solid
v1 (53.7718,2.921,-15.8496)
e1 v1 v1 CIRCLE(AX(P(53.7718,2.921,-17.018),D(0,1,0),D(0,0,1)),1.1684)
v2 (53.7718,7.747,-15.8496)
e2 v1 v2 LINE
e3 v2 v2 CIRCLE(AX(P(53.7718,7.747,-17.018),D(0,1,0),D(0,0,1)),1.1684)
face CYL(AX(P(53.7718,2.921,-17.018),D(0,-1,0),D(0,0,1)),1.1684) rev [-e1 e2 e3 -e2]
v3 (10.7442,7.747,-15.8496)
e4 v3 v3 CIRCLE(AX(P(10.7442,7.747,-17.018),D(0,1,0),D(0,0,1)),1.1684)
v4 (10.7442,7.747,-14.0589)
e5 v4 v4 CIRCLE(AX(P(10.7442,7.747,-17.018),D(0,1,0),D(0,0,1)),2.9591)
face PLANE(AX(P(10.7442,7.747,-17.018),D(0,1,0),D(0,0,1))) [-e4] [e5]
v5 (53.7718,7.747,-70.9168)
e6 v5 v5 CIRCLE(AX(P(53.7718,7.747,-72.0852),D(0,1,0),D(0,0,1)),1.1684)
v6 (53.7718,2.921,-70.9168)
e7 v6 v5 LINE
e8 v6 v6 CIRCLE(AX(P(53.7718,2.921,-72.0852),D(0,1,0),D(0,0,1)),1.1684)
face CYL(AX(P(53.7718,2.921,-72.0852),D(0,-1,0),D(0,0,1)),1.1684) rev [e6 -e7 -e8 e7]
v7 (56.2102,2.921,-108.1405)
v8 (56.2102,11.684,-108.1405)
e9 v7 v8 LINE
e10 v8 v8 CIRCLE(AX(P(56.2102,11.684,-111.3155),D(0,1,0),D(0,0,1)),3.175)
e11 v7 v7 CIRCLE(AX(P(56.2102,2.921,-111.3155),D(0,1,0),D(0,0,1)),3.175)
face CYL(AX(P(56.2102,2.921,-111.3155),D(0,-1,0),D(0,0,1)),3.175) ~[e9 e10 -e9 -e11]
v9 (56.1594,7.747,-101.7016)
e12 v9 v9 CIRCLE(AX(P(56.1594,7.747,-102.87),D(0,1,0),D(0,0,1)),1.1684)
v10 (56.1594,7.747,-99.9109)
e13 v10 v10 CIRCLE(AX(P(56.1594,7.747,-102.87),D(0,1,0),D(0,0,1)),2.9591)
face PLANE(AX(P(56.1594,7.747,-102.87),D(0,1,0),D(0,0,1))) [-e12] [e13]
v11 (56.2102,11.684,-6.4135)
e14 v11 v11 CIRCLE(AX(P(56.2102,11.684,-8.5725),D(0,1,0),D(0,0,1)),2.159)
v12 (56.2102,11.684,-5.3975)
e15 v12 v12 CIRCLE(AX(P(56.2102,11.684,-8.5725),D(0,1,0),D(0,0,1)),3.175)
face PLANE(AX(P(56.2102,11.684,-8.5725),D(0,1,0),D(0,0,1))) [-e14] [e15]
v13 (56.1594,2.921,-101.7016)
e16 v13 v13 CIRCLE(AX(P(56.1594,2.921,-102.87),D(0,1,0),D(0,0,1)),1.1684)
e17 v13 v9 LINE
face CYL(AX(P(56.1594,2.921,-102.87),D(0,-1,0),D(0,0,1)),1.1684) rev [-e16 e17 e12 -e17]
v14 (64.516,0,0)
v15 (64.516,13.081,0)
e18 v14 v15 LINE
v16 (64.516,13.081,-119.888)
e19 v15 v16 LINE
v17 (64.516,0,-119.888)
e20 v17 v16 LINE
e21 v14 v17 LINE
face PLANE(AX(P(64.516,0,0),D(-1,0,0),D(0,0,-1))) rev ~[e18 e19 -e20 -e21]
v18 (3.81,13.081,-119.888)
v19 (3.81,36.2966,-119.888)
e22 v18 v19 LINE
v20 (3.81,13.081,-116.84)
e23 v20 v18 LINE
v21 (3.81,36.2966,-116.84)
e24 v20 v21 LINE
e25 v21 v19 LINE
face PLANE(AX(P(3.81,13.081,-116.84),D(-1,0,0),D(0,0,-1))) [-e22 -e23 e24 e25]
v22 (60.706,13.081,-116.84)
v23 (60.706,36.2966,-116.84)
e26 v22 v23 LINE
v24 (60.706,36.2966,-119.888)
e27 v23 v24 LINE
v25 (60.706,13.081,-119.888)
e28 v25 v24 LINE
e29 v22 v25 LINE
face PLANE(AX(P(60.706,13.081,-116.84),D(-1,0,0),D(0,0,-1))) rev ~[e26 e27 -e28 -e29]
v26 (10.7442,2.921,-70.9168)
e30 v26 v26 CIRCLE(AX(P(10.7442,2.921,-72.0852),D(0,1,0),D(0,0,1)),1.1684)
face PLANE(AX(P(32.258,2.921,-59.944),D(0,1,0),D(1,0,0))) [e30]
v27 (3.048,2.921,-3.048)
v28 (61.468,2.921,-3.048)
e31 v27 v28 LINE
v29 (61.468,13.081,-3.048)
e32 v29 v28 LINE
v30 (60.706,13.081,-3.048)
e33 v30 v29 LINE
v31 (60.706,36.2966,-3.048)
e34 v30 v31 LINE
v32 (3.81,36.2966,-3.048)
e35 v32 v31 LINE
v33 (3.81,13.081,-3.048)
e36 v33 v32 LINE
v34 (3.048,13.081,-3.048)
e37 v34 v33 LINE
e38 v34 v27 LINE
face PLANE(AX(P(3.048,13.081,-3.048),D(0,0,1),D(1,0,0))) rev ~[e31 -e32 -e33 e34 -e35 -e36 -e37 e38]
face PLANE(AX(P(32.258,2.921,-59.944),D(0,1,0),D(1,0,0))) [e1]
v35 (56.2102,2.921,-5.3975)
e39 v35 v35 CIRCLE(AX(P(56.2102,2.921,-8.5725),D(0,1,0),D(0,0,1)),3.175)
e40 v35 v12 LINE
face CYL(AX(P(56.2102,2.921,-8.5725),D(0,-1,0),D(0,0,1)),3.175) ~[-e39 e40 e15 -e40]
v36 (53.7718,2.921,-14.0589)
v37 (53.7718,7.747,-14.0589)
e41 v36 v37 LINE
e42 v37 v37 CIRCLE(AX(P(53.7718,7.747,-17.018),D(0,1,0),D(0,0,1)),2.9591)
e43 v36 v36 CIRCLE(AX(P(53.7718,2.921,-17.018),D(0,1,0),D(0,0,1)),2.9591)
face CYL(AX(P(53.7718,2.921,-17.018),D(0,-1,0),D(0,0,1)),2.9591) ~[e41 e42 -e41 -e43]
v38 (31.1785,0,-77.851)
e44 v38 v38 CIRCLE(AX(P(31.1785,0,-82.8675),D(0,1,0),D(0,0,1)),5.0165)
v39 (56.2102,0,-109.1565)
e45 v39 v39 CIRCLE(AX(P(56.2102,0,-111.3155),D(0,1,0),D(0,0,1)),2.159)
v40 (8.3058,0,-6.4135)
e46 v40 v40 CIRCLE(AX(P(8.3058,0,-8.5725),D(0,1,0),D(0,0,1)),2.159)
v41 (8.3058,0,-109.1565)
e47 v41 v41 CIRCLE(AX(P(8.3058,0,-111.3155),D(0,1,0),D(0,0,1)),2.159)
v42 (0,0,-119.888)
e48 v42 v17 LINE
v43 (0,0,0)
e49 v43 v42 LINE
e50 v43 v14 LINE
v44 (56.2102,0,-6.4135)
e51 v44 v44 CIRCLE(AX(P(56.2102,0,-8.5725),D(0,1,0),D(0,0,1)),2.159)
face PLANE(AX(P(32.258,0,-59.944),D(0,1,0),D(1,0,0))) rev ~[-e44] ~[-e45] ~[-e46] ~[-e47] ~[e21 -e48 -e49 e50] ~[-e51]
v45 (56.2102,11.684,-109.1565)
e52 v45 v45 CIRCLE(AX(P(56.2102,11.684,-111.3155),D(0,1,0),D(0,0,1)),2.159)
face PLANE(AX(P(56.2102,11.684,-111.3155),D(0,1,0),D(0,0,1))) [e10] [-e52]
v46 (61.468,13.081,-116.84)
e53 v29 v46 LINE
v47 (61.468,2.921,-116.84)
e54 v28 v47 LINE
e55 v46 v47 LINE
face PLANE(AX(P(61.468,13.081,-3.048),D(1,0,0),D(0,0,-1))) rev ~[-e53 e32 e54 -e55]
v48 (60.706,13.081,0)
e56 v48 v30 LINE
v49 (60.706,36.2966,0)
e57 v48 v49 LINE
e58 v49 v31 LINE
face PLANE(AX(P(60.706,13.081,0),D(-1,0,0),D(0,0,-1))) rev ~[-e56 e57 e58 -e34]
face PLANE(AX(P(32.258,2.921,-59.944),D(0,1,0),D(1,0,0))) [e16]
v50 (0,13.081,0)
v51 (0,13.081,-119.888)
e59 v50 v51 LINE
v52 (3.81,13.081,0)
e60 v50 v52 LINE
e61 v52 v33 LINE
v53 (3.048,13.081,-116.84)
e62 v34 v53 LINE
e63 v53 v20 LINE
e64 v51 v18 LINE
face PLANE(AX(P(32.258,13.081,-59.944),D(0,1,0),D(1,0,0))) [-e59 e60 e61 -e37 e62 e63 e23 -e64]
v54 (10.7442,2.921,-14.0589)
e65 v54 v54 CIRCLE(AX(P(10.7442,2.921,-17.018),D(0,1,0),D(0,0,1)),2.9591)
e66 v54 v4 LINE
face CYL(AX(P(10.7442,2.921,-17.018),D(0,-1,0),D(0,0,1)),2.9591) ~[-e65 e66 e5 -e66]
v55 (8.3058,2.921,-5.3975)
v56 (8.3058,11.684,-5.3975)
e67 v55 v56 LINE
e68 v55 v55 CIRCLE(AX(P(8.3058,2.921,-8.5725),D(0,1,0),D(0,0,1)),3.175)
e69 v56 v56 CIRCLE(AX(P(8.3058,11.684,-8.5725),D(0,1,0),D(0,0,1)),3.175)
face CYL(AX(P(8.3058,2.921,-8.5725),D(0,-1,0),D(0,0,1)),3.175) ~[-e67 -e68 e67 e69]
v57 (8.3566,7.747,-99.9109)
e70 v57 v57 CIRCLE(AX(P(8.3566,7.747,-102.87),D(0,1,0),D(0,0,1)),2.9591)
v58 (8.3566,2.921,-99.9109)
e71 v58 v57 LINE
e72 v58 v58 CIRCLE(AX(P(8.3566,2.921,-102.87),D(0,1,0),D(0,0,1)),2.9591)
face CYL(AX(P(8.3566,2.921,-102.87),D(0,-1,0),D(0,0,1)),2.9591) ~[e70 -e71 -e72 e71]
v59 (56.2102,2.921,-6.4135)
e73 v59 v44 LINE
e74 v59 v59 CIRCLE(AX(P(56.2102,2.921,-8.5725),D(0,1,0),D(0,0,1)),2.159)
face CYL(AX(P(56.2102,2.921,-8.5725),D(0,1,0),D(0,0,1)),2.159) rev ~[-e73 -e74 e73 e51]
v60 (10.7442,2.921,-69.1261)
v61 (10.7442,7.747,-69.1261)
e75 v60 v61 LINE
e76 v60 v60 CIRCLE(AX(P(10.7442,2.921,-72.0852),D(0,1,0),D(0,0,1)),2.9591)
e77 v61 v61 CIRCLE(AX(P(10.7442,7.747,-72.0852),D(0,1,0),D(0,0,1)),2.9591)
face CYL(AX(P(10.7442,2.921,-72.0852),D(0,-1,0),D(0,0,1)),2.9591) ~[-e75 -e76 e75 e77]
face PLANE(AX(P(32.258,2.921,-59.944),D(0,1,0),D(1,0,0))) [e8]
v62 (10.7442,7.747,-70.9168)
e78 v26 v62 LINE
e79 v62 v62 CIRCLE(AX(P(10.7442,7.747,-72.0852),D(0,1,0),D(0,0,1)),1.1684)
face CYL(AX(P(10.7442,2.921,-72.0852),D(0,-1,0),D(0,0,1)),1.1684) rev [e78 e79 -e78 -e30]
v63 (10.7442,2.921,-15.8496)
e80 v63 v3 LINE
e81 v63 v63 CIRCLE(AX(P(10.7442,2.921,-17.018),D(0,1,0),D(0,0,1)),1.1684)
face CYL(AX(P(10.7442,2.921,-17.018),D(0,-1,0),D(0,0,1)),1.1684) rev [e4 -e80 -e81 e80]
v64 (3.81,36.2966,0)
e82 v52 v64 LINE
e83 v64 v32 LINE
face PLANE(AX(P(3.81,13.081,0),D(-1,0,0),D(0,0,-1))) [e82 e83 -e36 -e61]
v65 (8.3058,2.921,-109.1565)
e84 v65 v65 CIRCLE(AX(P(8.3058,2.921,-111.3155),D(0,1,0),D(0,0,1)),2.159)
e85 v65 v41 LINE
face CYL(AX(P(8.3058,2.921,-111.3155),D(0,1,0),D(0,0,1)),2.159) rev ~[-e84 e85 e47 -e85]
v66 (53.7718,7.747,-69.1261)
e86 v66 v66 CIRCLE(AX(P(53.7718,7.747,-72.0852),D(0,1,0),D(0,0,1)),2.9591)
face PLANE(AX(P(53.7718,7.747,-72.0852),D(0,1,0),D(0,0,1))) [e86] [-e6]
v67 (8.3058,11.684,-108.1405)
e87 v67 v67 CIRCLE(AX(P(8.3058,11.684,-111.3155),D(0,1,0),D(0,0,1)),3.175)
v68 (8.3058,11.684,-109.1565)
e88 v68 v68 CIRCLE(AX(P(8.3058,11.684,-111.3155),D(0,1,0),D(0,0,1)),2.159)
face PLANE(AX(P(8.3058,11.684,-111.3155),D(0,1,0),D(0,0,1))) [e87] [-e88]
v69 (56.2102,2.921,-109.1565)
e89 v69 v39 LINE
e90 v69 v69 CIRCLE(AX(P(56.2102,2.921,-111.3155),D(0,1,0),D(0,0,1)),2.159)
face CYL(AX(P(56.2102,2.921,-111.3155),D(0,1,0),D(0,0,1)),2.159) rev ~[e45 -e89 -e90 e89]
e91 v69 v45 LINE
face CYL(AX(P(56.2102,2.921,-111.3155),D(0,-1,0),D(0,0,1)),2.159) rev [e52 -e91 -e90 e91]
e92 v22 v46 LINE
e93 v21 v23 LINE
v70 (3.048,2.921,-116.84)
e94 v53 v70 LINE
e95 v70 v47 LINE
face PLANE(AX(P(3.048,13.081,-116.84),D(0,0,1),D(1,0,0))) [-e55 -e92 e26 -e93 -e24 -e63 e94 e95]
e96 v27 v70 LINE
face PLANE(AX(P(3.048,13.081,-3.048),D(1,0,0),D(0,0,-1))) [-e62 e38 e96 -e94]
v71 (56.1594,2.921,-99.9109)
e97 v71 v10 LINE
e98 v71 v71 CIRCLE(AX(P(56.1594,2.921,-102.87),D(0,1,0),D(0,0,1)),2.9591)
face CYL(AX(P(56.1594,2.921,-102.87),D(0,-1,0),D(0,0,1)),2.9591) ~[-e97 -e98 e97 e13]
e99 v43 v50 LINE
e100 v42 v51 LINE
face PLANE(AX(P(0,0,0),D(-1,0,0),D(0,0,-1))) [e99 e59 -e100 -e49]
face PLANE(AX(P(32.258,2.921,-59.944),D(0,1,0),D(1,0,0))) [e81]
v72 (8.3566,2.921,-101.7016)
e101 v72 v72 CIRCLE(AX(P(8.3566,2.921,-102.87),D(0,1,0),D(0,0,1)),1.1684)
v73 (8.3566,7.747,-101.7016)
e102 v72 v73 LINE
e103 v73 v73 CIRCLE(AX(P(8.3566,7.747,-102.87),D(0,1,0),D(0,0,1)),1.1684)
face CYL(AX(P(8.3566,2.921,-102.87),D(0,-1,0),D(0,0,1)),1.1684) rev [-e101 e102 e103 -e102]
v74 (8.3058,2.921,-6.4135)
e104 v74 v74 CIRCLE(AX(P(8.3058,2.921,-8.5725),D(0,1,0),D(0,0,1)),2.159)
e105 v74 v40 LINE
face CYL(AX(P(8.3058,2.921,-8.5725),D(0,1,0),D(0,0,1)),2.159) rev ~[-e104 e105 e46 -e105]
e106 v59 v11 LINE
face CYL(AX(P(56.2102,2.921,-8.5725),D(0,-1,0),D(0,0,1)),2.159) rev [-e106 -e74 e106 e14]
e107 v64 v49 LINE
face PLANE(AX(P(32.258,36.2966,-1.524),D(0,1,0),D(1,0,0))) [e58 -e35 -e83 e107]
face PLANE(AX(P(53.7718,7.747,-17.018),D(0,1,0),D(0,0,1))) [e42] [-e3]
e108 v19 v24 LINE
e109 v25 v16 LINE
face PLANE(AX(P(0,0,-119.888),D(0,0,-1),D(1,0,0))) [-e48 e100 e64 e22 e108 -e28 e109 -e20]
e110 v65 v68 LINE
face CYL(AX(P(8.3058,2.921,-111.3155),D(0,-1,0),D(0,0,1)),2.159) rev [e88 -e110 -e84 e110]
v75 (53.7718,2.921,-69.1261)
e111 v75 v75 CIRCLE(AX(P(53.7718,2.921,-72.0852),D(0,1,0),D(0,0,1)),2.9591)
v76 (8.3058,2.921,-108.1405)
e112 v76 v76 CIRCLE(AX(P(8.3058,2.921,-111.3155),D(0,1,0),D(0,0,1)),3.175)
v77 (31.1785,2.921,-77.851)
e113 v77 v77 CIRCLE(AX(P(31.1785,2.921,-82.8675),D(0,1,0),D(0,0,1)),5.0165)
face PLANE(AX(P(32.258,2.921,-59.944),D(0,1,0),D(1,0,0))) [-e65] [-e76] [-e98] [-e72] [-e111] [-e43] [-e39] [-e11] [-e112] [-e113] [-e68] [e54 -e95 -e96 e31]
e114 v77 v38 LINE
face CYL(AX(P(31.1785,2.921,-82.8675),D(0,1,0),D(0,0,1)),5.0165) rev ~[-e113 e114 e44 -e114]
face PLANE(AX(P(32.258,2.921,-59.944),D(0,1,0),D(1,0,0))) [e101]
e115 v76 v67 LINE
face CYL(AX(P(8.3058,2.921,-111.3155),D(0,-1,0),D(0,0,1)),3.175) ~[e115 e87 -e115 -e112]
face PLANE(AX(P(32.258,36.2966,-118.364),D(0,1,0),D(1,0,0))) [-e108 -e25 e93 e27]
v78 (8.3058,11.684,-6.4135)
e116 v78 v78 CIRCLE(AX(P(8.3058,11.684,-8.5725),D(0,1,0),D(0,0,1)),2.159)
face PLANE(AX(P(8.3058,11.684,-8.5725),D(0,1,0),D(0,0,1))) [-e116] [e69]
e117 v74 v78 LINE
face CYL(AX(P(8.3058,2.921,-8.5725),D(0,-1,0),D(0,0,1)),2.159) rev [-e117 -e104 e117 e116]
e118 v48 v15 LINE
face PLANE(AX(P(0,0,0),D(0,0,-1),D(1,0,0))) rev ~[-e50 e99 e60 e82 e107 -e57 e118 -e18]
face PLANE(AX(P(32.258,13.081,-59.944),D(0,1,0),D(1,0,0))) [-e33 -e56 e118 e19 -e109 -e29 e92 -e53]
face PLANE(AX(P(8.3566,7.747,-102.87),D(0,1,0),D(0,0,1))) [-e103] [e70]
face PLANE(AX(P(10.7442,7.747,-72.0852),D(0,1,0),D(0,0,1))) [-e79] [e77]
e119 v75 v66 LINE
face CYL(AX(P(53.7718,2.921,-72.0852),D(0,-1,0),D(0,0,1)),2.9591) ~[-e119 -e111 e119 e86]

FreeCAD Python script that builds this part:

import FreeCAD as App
import Part
import Sketcher
from FreeCAD import Vector
Q = App.Units.Quantity


def add_polygon(sketch, points):
    """Adds a closed chain of lines whose ends are joined by coincident constraints."""
    first, n = sketch.GeometryCount, len(points)
    for a, b in zip(points, points[1:] + points[:1]):
        sketch.addGeometry(Part.LineSegment(App.Vector(*a, 0), App.Vector(*b, 0)), False)
    for i in range(n):
        sketch.addConstraint(Sketcher.Constraint("Coincident", first + i, 2, first + (i + 1) % n, 1))

doc = App.newDocument("Part")
body = doc.addObject("PartDesign::Body", "Body")

# Sketch on XZ plane
sketch1 = body.newObject("Sketcher::SketchObject", "Sketch")
sketch1.AttachmentSupport = (doc.getObject("XZ_Plane"), [""])
sketch1.MapMode = "FlatFace"
add_polygon(sketch1, [(0, -119.888), (0, 0), (64.516, 0), (64.516, -119.888)])  # lines 0-3
sketch1.addConstraint([
    Sketcher.Constraint("Vertical", 0),
    Sketcher.Constraint("Horizontal", 1),
    Sketcher.Constraint("Vertical", 2),
    Sketcher.Constraint("Horizontal", 3),
    Sketcher.Constraint("Coincident", 0, 2, -1, 1),
    Sketcher.Constraint("DistanceX", 1, 1, 1, 2, Q("2.54 in")),
    Sketcher.Constraint("DistanceY", 0, 1, 0, 2, Q("4.72 in")),
])
pad1 = body.newObject("PartDesign::Pad", "Pad")
pad1.Profile = sketch1
pad1.Length = Q("0.515 in")
pad1.Reversed = True

# Sketch on XZ plane
sketch2 = body.newObject("Sketcher::SketchObject", "Sketch001")
sketch2.AttachmentSupport = (doc.getObject("XZ_Plane"), [""])
sketch2.MapMode = "FlatFace"
sketch2.AttachmentOffset = App.Placement(Vector(0, 0, -0.515 * 25.4), App.Rotation())
add_polygon(sketch2, [(3.048, -116.84), (3.048, -3.048), (61.468, -3.048), (61.468, -116.84)])  # lines 0-3
sketch2.addConstraint([
    Sketcher.Constraint("Vertical", 0),
    Sketcher.Constraint("Horizontal", 1),
    Sketcher.Constraint("Vertical", 2),
    Sketcher.Constraint("Horizontal", 3),
    Sketcher.Constraint("DistanceX", 1, 1, 1, 2, Q("2.3 in")),
    Sketcher.Constraint("DistanceY", 0, 1, 0, 2, Q("4.48 in")),
    Sketcher.Constraint("DistanceY", 2, 2, -1, 1, Q("4.6 in")),
    Sketcher.Constraint("DistanceX", -1, 1, 0, 2, Q("0.12 in")),
])
pocket1 = body.newObject("PartDesign::Pocket", "Pocket")
pocket1.Profile = sketch2
pocket1.Length = Q("0.4 in")
pocket1.Reversed = True

# Sketch on XZ plane
sketch3 = body.newObject("Sketcher::SketchObject", "Sketch002")
sketch3.AttachmentSupport = (doc.getObject("XZ_Plane"), [""])
sketch3.MapMode = "FlatFace"
sketch3.AttachmentOffset = App.Placement(Vector(0, 0, -0.515 * 25.4), App.Rotation())
add_polygon(sketch3, [(3.81, -3.048), (3.81, 0), (60.706, 0), (60.706, -3.048)])  # lines 0-3
add_polygon(sketch3, [(3.81, -119.888), (3.81, -116.84), (60.706, -116.84), (60.706, -119.888)])  # lines 4-7
sketch3.addConstraint([
    Sketcher.Constraint("Vertical", 0),
    Sketcher.Constraint("Horizontal", 1),
    Sketcher.Constraint("Vertical", 2),
    Sketcher.Constraint("Horizontal", 3),
    Sketcher.Constraint("Vertical", 4),
    Sketcher.Constraint("Horizontal", 5),
    Sketcher.Constraint("Vertical", 6),
    Sketcher.Constraint("Horizontal", 7),
    Sketcher.Constraint("PointOnObject", 0, 2, -1),
    Sketcher.Constraint("Vertical", 3, 2, 4, 2),
    Sketcher.Constraint("Vertical", 2, 2, 5, 2),
    Sketcher.Constraint("Equal", 2, 4),
    Sketcher.Constraint("DistanceX", 1, 1, 1, 2, Q("2.24 in")),
    Sketcher.Constraint("DistanceY", 0, 1, 0, 2, Q("0.12 in")),
    Sketcher.Constraint("DistanceY", 4, 2, -1, 1, Q("4.6 in")),
    Sketcher.Constraint("DistanceX", -1, 1, 0, 2, Q("0.15 in")),
])
pad2 = body.newObject("PartDesign::Pad", "Pad001")
pad2.Profile = sketch3
pad2.Length = Q("0.914 in")
pad2.Reversed = True

# Sketch on XZ plane
sketch4 = body.newObject("Sketcher::SketchObject", "Sketch003")
sketch4.AttachmentSupport = (doc.getObject("XZ_Plane"), [""])
sketch4.MapMode = "FlatFace"
sketch4.AttachmentOffset = App.Placement(Vector(0, 0, -0.115 * 25.4), App.Rotation())
sketch4.addGeometry([
    Part.Circle(Vector(8.3566, -102.87, 0), Vector(0, 0, 1), 2.9591),  # 0
    Part.Circle(Vector(8.3566, -102.87, 0), Vector(0, 0, 1), 1.1684),  # 1
    Part.Circle(Vector(56.1594, -102.87, 0), Vector(0, 0, 1), 2.9591),  # 2
    Part.Circle(Vector(56.1594, -102.87, 0), Vector(0, 0, 1), 1.1684),  # 3
    Part.Circle(Vector(10.7442, -72.0852, 0), Vector(0, 0, 1), 2.9591),  # 4
    Part.Circle(Vector(10.7442, -72.0852, 0), Vector(0, 0, 1), 1.1684),  # 5
    Part.Circle(Vector(53.7718, -72.0852, 0), Vector(0, 0, 1), 2.9591),  # 6
    Part.Circle(Vector(53.7718, -72.0852, 0), Vector(0, 0, 1), 1.1684),  # 7
    Part.Circle(Vector(10.7442, -17.018, 0), Vector(0, 0, 1), 2.9591),  # 8
    Part.Circle(Vector(10.7442, -17.018, 0), Vector(0, 0, 1), 1.1684),  # 9
    Part.Circle(Vector(53.7718, -17.018, 0), Vector(0, 0, 1), 2.9591),  # 10
    Part.Circle(Vector(53.7718, -17.018, 0), Vector(0, 0, 1), 1.1684),  # 11
], False)
sketch4.addConstraint([
    Sketcher.Constraint("Coincident", 1, 3, 0, 3),
    Sketcher.Constraint("Coincident", 3, 3, 2, 3),
    Sketcher.Constraint("Coincident", 5, 3, 4, 3),
    Sketcher.Constraint("Coincident", 7, 3, 6, 3),
    Sketcher.Constraint("Coincident", 9, 3, 8, 3),
    Sketcher.Constraint("Coincident", 11, 3, 10, 3),
    Sketcher.Constraint("Equal", 0, 2),
    Sketcher.Constraint("Equal", 1, 3),
    Sketcher.Constraint("Equal", 2, 4),
    Sketcher.Constraint("Equal", 3, 5),
    Sketcher.Constraint("Equal", 4, 6),
    Sketcher.Constraint("Equal", 5, 7),
    Sketcher.Constraint("Equal", 6, 8),
    Sketcher.Constraint("Equal", 7, 9),
    Sketcher.Constraint("Equal", 8, 10),
    Sketcher.Constraint("Equal", 9, 11),
    Sketcher.Constraint("Horizontal", 1, 3, 2, 3),
    Sketcher.Constraint("Horizontal", 5, 3, 6, 3),
    Sketcher.Constraint("Horizontal", 9, 3, 10, 3),
    Sketcher.Constraint("Vertical", 5, 3, 8, 3),
    Sketcher.Constraint("Vertical", 7, 3, 10, 3),
    Sketcher.Constraint("Diameter", 0, Q("0.233 in")),
    Sketcher.Constraint("Diameter", 1, Q("0.092 in")),
    Sketcher.Constraint("DistanceY", 0, 3, -1, 1, Q("4.05 in")),
    Sketcher.Constraint("DistanceY", 8, 3, -1, 1, Q("0.67 in")),
    Sketcher.Constraint("DistanceX", -1, 1, 0, 3, Q("0.329 in")),
    Sketcher.Constraint("DistanceX", -1, 1, 2, 3, Q("2.211 in")),
    Sketcher.Constraint("DistanceX", -1, 1, 4, 3, Q("0.423 in")),
    Sketcher.Constraint("DistanceY", 4, 3, -1, 1, Q("2.838 in")),
    Sketcher.Constraint("DistanceX", -1, 1, 6, 3, Q("2.117 in")),
])
pad3 = body.newObject("PartDesign::Pad", "Pad002")
pad3.Profile = sketch4
pad3.Length = Q("0.19 in")
pad3.Reversed = True

# Sketch on XZ plane
sketch5 = body.newObject("Sketcher::SketchObject", "Sketch004")
sketch5.AttachmentSupport = (doc.getObject("XZ_Plane"), [""])
sketch5.MapMode = "FlatFace"
sketch5.AttachmentOffset = App.Placement(Vector(0, 0, -0.115 * 25.4), App.Rotation())
sketch5.addGeometry(Part.Circle(Vector(31.1785, -82.8675, 0), Vector(0, 0, 1), 5.0165), False)
sketch5.addConstraint([
    Sketcher.Constraint("Diameter", 0, Q("0.395 in")),
    Sketcher.Constraint("DistanceX", -1, 1, 0, 3, Q("1.2275 in")),
    Sketcher.Constraint("DistanceY", 0, 3, -1, 1, Q("3.2625 in")),
])
pocket2 = body.newObject("PartDesign::Pocket", "Pocket001")
pocket2.Profile = sketch5
pocket2.Type = "ThroughAll"
pocket2.Reversed = True

# Sketch on XZ plane
sketch6 = body.newObject("Sketcher::SketchObject", "Sketch005")
sketch6.AttachmentSupport = (doc.getObject("XZ_Plane"), [""])
sketch6.MapMode = "FlatFace"
sketch6.AttachmentOffset = App.Placement(Vector(0, 0, -0.115 * 25.4), App.Rotation())
sketch6.addGeometry([
    Part.Circle(Vector(8.3058, -111.3155, 0), Vector(0, 0, 1), 3.175),  # 0
    Part.Circle(Vector(8.3058, -111.3155, 0), Vector(0, 0, 1), 2.159),  # 1
    Part.Circle(Vector(56.2102, -111.3155, 0), Vector(0, 0, 1), 3.175),  # 2
    Part.Circle(Vector(56.2102, -111.3155, 0), Vector(0, 0, 1), 2.159),  # 3
    Part.Circle(Vector(8.3058, -8.5725, 0), Vector(0, 0, 1), 3.175),  # 4
    Part.Circle(Vector(8.3058, -8.5725, 0), Vector(0, 0, 1), 2.159),  # 5
    Part.Circle(Vector(56.2102, -8.5725, 0), Vector(0, 0, 1), 3.175),  # 6
    Part.Circle(Vector(56.2102, -8.5725, 0), Vector(0, 0, 1), 2.159),  # 7
], False)
sketch6.addConstraint([
    Sketcher.Constraint("Coincident", 1, 3, 0, 3),
    Sketcher.Constraint("Coincident", 3, 3, 2, 3),
    Sketcher.Constraint("Coincident", 5, 3, 4, 3),
    Sketcher.Constraint("Coincident", 7, 3, 6, 3),
    Sketcher.Constraint("Equal", 0, 2),
    Sketcher.Constraint("Equal", 1, 3),
    Sketcher.Constraint("Equal", 2, 4),
    Sketcher.Constraint("Equal", 3, 5),
    Sketcher.Constraint("Equal", 4, 6),
    Sketcher.Constraint("Equal", 5, 7),
    Sketcher.Constraint("Horizontal", 1, 3, 2, 3),
    Sketcher.Constraint("Horizontal", 5, 3, 6, 3),
    Sketcher.Constraint("Vertical", 1, 3, 4, 3),
    Sketcher.Constraint("Vertical", 3, 3, 6, 3),
    Sketcher.Constraint("Diameter", 0, Q("0.25 in")),
    Sketcher.Constraint("Diameter", 1, Q("0.17 in")),
    Sketcher.Constraint("DistanceX", -1, 1, 0, 3, Q("0.327 in")),
    Sketcher.Constraint("DistanceX", -1, 1, 2, 3, Q("2.213 in")),
    Sketcher.Constraint("DistanceY", 0, 3, 4, 3, Q("4.045 in")),
    Sketcher.Constraint("DistanceY", 0, 3, -1, 1, Q("4.3825 in")),
])
pad4 = body.newObject("PartDesign::Pad", "Pad003")
pad4.Profile = sketch6
pad4.Length = Q("0.345 in")
pad4.Reversed = True

# Sketch on XZ plane
sketch7 = body.newObject("Sketcher::SketchObject", "Sketch006")
sketch7.AttachmentSupport = (doc.getObject("XZ_Plane"), [""])
sketch7.MapMode = "FlatFace"
sketch7.AttachmentOffset = App.Placement(Vector(0, 0, -0.115 * 25.4), App.Rotation())
sketch7.addGeometry([
    Part.Circle(Vector(8.3058, -111.3155, 0), Vector(0, 0, 1), 2.159),
    Part.Circle(Vector(56.2102, -111.3155, 0), Vector(0, 0, 1), 2.159),
    Part.Circle(Vector(8.3058, -8.5725, 0), Vector(0, 0, 1), 2.159),
    Part.Circle(Vector(56.2102, -8.5725, 0), Vector(0, 0, 1), 2.159),
], False)
sketch7.addConstraint([
    Sketcher.Constraint("Equal", 0, 1),
    Sketcher.Constraint("Equal", 1, 2),
    Sketcher.Constraint("Equal", 2, 3),
    Sketcher.Constraint("Horizontal", 0, 3, 1, 3),
    Sketcher.Constraint("Horizontal", 2, 3, 3, 3),
    Sketcher.Constraint("Vertical", 0, 3, 2, 3),
    Sketcher.Constraint("Vertical", 1, 3, 3, 3),
    Sketcher.Constraint("Diameter", 0, Q("0.17 in")),
    Sketcher.Constraint("DistanceX", -1, 1, 0, 3, Q("0.327 in")),
    Sketcher.Constraint("DistanceX", -1, 1, 1, 3, Q("2.213 in")),
    Sketcher.Constraint("DistanceY", 0, 3, 2, 3, Q("4.045 in")),
    Sketcher.Constraint("DistanceY", 0, 3, -1, 1, Q("4.3825 in")),
])
pocket3 = body.newObject("PartDesign::Pocket", "Pocket002")
pocket3.Profile = sketch7
pocket3.Type = "ThroughAll"
pocket3.Reversed = True

doc.recompute()
